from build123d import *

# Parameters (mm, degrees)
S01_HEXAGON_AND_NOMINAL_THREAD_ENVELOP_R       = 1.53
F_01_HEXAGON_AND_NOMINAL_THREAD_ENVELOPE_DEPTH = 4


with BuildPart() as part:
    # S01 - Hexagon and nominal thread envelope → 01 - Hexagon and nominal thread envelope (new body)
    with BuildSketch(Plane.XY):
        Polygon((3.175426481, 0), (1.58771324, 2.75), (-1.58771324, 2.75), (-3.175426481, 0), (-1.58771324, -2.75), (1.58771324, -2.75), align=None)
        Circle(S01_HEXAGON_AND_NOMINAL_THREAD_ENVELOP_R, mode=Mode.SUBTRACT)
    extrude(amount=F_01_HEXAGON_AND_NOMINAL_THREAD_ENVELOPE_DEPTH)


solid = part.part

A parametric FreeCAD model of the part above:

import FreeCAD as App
import Part
import Sketcher
Q = App.Units.Quantity


def add_polygon(sketch, points):
    """Adds a closed chain of lines whose ends are joined by coincident constraints."""
    first, n = sketch.GeometryCount, len(points)
    for a, b in zip(points, points[1:] + points[:1]):
        sketch.addGeometry(Part.LineSegment(App.Vector(*a, 0), App.Vector(*b, 0)), False)
    for i in range(n):
        sketch.addConstraint(Sketcher.Constraint("Coincident", first + i, 2, first + (i + 1) % n, 1))

doc = App.newDocument("Part")
body = doc.addObject("PartDesign::Body", "Body")

sketch1 = body.newObject("Sketcher::SketchObject", "Sketch")
sketch1.AttachmentSupport = (doc.getObject("XY_Plane"), [""])
sketch1.MapMode = "FlatFace"
add_polygon(sketch1, [(3.2, 0), (1.6, 2.8), (-1.6, 2.8), (-3.2, 0), (-1.6, -2.8), (1.6, -2.8)])
sketch1.addGeometry(Part.Circle(App.Vector(0, 0, 0), App.Vector(0, 0, 1), 1.5), False)
sketch1.addConstraint(Sketcher.Constraint("Horizontal", 1))
sketch1.addConstraint(Sketcher.Constraint("Horizontal", 4))
sketch1.addConstraint(Sketcher.Constraint("Coincident", 6, 3, -1, 1))
sketch1.addConstraint(Sketcher.Constraint("Symmetric", 0, 2, 3, 2, -1, 1))
sketch1.addConstraint(Sketcher.Constraint("Symmetric", 2, 2, 5, 2, -1, 1))
sketch1.addConstraint(Sketcher.Constraint("PointOnObject", 2, 2, -1))
sketch1.addConstraint(Sketcher.Constraint("Parallel", 2, 5))
sketch1.addConstraint(Sketcher.Constraint("Vertical", 1, 2, 3, 2))
sketch1.addConstraint(Sketcher.Constraint("Diameter", 6, 3.06))
sketch1.addConstraint(Sketcher.Constraint("Angle", 0, Q("120 deg")))
sketch1.addConstraint(Sketcher.Constraint("DistanceY", 3, 2, 1, 2, 5.5))
sketch1.addConstraint(Sketcher.Constraint("DistanceX", 1, 2, 1, 1, 3.175426))
pad1 = body.newObject("PartDesign::Pad", "Pad")
pad1.Profile = sketch1
pad1.Length = 4

doc.recompute()
